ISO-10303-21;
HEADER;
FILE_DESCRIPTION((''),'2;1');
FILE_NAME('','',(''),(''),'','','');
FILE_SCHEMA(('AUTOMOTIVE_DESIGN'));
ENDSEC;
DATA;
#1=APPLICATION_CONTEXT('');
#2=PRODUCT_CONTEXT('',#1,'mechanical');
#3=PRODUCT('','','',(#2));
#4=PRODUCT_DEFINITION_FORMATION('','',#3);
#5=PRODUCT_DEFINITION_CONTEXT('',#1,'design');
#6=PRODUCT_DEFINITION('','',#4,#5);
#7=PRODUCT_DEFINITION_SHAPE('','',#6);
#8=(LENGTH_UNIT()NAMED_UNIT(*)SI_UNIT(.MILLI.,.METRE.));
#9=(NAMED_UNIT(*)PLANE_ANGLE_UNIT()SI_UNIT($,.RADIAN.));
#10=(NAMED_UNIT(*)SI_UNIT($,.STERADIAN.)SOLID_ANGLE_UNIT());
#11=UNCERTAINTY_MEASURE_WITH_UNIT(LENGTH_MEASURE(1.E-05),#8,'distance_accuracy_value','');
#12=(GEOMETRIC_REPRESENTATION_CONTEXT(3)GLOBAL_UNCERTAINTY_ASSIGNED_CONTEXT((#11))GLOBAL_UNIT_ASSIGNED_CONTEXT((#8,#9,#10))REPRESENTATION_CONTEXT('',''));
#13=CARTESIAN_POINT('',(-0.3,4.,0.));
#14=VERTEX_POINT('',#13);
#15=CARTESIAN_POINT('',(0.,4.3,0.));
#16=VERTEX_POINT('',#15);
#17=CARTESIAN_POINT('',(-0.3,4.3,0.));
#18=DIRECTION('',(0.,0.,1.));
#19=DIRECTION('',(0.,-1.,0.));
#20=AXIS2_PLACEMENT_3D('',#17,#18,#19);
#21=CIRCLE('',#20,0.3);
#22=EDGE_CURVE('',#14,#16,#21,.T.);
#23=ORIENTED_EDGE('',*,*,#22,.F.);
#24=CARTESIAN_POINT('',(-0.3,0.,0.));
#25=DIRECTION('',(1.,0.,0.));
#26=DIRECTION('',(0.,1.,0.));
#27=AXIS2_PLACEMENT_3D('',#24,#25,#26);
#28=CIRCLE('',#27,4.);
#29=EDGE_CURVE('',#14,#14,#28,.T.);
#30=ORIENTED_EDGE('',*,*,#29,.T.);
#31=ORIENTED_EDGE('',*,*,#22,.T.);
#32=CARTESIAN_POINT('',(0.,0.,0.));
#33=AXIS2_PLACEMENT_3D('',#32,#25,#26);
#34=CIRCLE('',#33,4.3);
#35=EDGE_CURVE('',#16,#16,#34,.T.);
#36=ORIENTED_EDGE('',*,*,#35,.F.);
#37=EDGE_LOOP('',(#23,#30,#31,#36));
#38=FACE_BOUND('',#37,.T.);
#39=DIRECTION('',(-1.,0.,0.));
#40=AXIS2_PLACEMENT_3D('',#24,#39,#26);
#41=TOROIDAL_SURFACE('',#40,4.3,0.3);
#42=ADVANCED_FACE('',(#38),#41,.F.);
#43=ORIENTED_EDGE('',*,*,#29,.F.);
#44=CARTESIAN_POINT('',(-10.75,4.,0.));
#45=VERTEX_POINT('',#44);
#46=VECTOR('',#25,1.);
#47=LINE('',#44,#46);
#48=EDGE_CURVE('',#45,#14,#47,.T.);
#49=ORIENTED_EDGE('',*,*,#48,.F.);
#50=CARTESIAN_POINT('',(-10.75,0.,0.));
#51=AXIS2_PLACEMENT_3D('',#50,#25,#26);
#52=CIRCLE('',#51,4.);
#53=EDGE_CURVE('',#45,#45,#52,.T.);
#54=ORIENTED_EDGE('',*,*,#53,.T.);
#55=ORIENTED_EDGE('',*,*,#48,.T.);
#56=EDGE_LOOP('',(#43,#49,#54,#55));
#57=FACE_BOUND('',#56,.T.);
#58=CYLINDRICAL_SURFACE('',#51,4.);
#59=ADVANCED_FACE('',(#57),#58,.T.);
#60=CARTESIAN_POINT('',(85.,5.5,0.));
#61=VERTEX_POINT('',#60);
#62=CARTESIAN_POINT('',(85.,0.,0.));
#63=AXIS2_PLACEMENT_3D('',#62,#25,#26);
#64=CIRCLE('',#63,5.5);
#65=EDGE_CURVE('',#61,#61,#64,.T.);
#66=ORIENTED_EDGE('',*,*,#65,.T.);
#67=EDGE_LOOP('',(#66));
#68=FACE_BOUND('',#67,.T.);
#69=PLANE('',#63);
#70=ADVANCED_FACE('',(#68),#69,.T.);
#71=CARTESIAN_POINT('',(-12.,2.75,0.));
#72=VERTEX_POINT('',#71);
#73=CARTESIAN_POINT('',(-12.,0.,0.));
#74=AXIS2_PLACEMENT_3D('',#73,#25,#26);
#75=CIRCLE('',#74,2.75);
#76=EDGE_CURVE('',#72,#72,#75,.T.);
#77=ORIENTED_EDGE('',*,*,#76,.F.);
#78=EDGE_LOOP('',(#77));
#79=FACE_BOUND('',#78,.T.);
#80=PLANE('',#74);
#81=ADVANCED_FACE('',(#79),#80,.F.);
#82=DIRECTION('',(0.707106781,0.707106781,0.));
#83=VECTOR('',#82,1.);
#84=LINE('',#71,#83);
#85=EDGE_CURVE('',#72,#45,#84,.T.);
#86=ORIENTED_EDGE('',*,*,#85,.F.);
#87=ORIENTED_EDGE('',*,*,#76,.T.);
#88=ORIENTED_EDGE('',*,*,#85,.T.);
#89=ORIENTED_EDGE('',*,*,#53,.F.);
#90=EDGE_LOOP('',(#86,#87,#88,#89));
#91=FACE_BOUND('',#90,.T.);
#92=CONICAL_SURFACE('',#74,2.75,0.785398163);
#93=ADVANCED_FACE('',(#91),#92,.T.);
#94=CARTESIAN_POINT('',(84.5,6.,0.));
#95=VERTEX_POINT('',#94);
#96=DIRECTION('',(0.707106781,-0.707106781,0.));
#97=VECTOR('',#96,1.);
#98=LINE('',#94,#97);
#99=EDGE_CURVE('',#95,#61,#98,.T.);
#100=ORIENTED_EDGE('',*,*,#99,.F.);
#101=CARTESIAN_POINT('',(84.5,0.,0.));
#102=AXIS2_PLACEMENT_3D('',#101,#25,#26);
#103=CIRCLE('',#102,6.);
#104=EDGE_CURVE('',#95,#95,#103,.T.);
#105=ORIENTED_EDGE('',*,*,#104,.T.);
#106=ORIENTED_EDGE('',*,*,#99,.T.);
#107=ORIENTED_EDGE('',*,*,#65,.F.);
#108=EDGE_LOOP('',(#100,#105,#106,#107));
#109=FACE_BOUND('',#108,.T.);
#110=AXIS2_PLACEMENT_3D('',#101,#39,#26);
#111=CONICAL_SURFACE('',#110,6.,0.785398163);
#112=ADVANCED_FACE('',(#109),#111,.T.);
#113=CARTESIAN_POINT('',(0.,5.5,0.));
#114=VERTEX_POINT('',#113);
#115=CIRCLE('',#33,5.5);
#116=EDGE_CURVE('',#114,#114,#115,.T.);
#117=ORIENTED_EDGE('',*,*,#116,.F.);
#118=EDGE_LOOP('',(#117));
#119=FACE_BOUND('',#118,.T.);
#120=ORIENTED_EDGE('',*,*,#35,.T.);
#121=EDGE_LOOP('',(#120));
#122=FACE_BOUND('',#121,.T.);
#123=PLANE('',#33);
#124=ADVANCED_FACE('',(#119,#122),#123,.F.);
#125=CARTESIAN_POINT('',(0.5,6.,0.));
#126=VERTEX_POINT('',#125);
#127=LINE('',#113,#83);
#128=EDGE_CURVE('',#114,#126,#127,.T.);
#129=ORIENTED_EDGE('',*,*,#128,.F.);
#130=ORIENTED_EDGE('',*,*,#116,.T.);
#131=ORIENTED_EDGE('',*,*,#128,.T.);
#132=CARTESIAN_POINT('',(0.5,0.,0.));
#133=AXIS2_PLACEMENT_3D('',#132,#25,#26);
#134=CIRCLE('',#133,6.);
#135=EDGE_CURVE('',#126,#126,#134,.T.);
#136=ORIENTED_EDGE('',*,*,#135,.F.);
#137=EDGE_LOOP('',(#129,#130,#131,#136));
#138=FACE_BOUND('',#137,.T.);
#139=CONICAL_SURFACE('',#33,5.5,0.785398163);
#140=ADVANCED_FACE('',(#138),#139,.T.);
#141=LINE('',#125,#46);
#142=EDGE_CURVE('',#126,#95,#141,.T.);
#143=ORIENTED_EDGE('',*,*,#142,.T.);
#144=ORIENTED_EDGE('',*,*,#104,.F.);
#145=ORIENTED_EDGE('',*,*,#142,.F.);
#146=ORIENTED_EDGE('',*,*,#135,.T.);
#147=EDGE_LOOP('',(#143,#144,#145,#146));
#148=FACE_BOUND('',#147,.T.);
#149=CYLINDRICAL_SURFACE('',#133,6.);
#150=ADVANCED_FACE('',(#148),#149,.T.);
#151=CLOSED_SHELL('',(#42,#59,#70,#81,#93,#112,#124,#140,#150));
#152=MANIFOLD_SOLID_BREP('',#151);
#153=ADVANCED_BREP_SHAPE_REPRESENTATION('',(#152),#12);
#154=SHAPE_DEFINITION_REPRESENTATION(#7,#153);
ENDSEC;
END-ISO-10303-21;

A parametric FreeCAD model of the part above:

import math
import FreeCAD as App
import Part
import Sketcher

doc = App.newDocument("Part")
body = doc.addObject("PartDesign::Body", "Body")

# Sketch on XY plane
sketch1 = body.newObject("Sketcher::SketchObject", "Sketch")
sketch1.AttachmentSupport = (doc.getObject("XY_Plane"), [""])
sketch1.MapMode = "FlatFace"
sketch1.addGeometry(Part.LineSegment(App.Vector(-12, 0, 0), App.Vector(85, 0, 0)), False)
sketch1.addGeometry(Part.LineSegment(App.Vector(85, 0, 0), App.Vector(85, 5.5, 0)), False)
sketch1.addGeometry(Part.LineSegment(App.Vector(85, 5.5, 0), App.Vector(84.5, 6, 0)), False)
sketch1.addGeometry(Part.LineSegment(App.Vector(84.5, 6, 0), App.Vector(0.5, 6, 0)), False)
sketch1.addGeometry(Part.LineSegment(App.Vector(0.5, 6, 0), App.Vector(0, 5.5, 0)), False)
sketch1.addGeometry(Part.LineSegment(App.Vector(0, 5.5, 0), App.Vector(0, 4.3, 0)), False)
sketch1.addGeometry(Part.ArcOfCircle(Part.Circle(App.Vector(-0.3, 4.3, 0), App.Vector(0, 0, 1), 0.3), math.radians(-90), math.radians(0)), False)
sketch1.addGeometry(Part.LineSegment(App.Vector(-0.3, 4, 0), App.Vector(-10.75, 4, 0)), False)
sketch1.addGeometry(Part.LineSegment(App.Vector(-10.75, 4, 0), App.Vector(-12, 2.75, 0)), False)
sketch1.addGeometry(Part.LineSegment(App.Vector(-12, 2.75, 0), App.Vector(-12, 0, 0)), False)
sketch1.addConstraint(Sketcher.Constraint("Coincident", 0, 2, 1, 1))
sketch1.addConstraint(Sketcher.Constraint("Coincident", 1, 2, 2, 1))
sketch1.addConstraint(Sketcher.Constraint("Coincident", 2, 2, 3, 1))
sketch1.addConstraint(Sketcher.Constraint("Coincident", 3, 2, 4, 1))
sketch1.addConstraint(Sketcher.Constraint("Coincident", 4, 2, 5, 1))
sketch1.addConstraint(Sketcher.Constraint("Tangent", 5, 2, 6, 2))
sketch1.addConstraint(Sketcher.Constraint("Tangent", 6, 1, 7, 1))
sketch1.addConstraint(Sketcher.Constraint("Coincident", 7, 2, 8, 1))
sketch1.addConstraint(Sketcher.Constraint("Coincident", 8, 2, 9, 1))
sketch1.addConstraint(Sketcher.Constraint("Coincident", 9, 2, 0, 1))
sketch1.addConstraint(Sketcher.Constraint("Horizontal", 0))
sketch1.addConstraint(Sketcher.Constraint("Vertical", 1))
sketch1.addConstraint(Sketcher.Constraint("Horizontal", 3))
sketch1.addConstraint(Sketcher.Constraint("Vertical", 5))
sketch1.addConstraint(Sketcher.Constraint("Horizontal", 7))
sketch1.addConstraint(Sketcher.Constraint("Vertical", 9))
sketch1.addConstraint(Sketcher.Constraint("PointOnObject", 0, 2, -1))
sketch1.addConstraint(Sketcher.Constraint("PointOnObject", 4, 2, -2))
sketch1.addConstraint(Sketcher.Constraint("Perpendicular", 2, 4))
sketch1.addConstraint(Sketcher.Constraint("Parallel", 4, 8))
sketch1.addConstraint(Sketcher.Constraint("Horizontal", 1, 2, 4, 2))
sketch1.addConstraint(Sketcher.Constraint("Equal", 2, 4))
sketch1.addConstraint(Sketcher.Constraint("Radius", 6, 0.3))
sketch1.addConstraint(Sketcher.Constraint("DistanceX", 0, 1, 0, 2, 97.0))
sketch1.addConstraint(Sketcher.Constraint("DistanceX", 3, 2, 3, 1, 84.0))
sketch1.addConstraint(Sketcher.Constraint("DistanceY", 1, 1, 1, 2, 5.5))
sketch1.addConstraint(Sketcher.Constraint("DistanceY", 5, 2, 5, 1, 1.2))
sketch1.addConstraint(Sketcher.Constraint("DistanceX", -1, 1, 0, 2, 85.0))
sketch1.addConstraint(Sketcher.Constraint("DistanceX", 7, 2, 7, 1, 10.45))
revolution = body.newObject("PartDesign::Revolution", "Revolution")
revolution.Profile = sketch1
revolution.ReferenceAxis = (sketch1, ["H_Axis"])
revolution.Angle = 360

doc.recompute()
